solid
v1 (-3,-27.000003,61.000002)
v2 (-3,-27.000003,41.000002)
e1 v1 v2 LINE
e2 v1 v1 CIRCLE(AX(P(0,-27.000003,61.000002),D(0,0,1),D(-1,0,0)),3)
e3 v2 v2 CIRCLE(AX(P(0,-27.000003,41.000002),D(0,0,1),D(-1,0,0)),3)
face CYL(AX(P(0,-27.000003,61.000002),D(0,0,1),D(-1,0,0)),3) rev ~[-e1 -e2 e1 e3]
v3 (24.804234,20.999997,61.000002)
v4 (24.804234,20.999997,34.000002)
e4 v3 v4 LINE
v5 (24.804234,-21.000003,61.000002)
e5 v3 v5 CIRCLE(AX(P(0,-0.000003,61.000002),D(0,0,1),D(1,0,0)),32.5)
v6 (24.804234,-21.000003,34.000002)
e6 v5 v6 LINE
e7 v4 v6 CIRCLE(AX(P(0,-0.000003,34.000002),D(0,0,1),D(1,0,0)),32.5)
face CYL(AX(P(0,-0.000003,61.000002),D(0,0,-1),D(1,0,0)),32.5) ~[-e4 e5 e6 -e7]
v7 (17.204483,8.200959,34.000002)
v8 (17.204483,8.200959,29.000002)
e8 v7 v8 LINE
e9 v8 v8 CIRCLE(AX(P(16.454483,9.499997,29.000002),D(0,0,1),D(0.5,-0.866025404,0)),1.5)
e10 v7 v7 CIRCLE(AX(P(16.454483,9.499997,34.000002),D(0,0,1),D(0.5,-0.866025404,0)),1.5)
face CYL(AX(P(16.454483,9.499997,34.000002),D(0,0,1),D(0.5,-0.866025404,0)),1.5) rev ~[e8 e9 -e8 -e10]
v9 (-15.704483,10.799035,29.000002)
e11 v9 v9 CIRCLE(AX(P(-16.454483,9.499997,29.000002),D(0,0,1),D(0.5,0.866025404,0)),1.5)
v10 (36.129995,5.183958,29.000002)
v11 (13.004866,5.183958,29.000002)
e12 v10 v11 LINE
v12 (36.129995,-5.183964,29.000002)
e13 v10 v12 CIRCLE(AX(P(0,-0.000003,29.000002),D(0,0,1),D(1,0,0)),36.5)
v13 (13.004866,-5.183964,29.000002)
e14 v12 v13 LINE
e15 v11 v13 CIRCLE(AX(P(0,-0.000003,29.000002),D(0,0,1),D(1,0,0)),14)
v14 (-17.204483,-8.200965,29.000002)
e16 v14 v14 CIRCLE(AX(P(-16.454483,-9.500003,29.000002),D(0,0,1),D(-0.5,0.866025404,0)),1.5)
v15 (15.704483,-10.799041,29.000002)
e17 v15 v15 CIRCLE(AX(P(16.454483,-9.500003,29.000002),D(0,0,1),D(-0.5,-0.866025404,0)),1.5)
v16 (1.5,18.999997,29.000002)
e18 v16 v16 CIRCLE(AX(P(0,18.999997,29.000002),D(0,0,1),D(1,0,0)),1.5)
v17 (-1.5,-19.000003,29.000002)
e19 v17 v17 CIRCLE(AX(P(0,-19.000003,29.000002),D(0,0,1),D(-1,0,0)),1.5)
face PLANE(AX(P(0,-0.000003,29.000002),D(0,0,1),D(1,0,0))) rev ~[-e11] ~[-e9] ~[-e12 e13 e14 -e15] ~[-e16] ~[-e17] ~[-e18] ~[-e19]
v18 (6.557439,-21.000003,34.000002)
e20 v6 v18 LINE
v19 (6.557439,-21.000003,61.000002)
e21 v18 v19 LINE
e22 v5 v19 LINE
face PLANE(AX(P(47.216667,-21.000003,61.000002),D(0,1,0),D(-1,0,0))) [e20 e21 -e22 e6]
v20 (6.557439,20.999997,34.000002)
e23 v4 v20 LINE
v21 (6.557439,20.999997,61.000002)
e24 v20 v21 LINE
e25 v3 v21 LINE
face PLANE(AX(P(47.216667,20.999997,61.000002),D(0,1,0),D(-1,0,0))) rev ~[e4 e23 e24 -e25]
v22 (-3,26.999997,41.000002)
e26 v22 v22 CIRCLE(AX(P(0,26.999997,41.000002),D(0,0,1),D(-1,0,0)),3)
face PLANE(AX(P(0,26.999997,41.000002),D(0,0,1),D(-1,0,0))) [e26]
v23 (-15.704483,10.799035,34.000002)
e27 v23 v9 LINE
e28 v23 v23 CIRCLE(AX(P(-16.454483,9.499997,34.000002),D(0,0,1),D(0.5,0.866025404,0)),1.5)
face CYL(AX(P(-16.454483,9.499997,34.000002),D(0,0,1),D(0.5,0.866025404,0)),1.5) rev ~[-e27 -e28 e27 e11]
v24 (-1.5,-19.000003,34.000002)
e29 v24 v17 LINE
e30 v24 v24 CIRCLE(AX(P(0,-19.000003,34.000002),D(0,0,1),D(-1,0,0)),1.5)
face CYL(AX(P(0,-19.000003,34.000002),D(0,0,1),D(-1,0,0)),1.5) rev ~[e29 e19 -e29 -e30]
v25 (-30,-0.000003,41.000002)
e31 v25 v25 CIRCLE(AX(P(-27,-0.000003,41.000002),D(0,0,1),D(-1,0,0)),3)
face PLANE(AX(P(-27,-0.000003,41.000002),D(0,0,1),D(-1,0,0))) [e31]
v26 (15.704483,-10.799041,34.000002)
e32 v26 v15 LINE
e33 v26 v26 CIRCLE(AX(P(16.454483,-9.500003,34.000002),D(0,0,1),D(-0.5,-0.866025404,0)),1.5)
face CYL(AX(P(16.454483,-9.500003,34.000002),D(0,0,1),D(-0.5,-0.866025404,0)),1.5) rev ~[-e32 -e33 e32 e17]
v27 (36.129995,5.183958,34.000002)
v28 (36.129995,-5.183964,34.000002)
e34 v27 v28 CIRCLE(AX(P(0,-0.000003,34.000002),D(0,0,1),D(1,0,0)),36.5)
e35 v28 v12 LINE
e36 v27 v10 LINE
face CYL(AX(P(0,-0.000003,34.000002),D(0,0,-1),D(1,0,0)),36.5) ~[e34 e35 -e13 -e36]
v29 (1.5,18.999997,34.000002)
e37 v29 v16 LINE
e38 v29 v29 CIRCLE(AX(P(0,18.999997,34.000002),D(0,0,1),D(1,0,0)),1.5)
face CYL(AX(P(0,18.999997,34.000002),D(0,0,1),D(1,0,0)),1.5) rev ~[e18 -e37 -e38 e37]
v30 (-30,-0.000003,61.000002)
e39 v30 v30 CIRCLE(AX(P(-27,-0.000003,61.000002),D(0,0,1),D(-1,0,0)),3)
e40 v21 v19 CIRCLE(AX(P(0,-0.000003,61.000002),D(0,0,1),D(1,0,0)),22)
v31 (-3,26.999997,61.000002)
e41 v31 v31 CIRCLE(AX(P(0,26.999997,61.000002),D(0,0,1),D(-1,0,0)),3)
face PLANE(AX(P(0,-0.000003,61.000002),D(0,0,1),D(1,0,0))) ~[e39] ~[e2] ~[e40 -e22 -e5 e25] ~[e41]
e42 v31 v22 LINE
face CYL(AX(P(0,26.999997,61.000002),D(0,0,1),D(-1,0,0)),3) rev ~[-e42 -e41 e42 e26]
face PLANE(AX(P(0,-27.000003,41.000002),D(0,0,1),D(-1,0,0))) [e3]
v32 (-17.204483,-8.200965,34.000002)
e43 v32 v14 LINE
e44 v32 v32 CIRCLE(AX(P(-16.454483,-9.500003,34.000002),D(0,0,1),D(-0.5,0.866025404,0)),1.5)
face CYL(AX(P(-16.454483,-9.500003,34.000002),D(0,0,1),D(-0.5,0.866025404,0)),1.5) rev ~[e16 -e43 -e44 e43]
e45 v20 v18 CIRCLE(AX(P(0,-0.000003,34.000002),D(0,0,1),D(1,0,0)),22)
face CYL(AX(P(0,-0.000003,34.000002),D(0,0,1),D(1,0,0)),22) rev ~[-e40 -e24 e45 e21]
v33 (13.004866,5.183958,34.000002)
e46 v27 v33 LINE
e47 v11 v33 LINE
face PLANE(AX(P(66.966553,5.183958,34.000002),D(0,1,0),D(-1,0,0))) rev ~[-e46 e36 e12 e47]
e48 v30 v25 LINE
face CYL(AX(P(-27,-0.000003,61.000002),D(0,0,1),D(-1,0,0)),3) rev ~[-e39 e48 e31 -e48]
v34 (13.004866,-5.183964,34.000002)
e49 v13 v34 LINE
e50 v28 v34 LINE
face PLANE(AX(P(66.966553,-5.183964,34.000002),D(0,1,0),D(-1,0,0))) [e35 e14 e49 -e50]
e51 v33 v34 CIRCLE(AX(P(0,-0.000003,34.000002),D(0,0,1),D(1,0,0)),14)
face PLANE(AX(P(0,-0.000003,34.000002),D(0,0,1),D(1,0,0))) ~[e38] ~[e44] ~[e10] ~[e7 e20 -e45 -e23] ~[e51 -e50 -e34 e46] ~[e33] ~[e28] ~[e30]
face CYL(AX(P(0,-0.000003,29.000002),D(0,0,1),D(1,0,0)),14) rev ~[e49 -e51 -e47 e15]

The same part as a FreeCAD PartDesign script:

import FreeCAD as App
import Part
import Sketcher
Q = App.Units.Quantity

doc = App.newDocument("Part")
params = doc.addObject("Spreadsheet::Sheet", "Params")
for row, (alias, value) in enumerate([
    ("sketch1_width", "4 mm"),
    ("sketch1_width2", "8 mm"),
    ("sketch1_height", "5 mm"),
    ("sketch1_height2", "27 mm"),
    ("sketch1_width3", "22.5 mm"),
    ("revolution_angle", "360 deg"),
    ("sketch2_diameter", "3 mm"),
    ("pocket1_length", "5 mm"),
    ("sketch3_height", "42 mm"),
    ("pocket2_length", "27 mm"),
    ("sketch4_diameter", "6 mm"),
    ("pocket3_length", "20 mm"),
    ("pocket4_length", "5 mm"),
], start=1):
    params.set(f"A{row}", alias)
    params.set(f"B{row}", "=" + value)
    params.setAlias(f"B{row}", alias)

body = doc.addObject("PartDesign::Body", "Body")

# Sketch on XZ plane
sketch1 = body.newObject("Sketcher::SketchObject", "Sketch")
sketch1.AttachmentSupport = (doc.getObject("XZ_Plane"), [""])
sketch1.MapMode = "FlatFace"
sketch1.addGeometry(Part.LineSegment(App.Vector(14, 5, 0), App.Vector(14, 0, 0)), False)
sketch1.addGeometry(Part.LineSegment(App.Vector(14, 0, 0), App.Vector(36.5, 0, 0)), False)
sketch1.addGeometry(Part.LineSegment(App.Vector(36.5, 0, 0), App.Vector(36.5, 5, 0)), False)
sketch1.addGeometry(Part.LineSegment(App.Vector(36.5, 5, 0), App.Vector(32.5, 5, 0)), False)
sketch1.addGeometry(Part.LineSegment(App.Vector(32.5, 5, 0), App.Vector(32.5, 32, 0)), False)
sketch1.addGeometry(Part.LineSegment(App.Vector(32.5, 32, 0), App.Vector(22, 32, 0)), False)
sketch1.addGeometry(Part.LineSegment(App.Vector(22, 32, 0), App.Vector(22, 5, 0)), False)
sketch1.addGeometry(Part.LineSegment(App.Vector(22, 5, 0), App.Vector(14, 5, 0)), False)
sketch1.addConstraint(Sketcher.Constraint("Coincident", 0, 2, 1, 1))
sketch1.addConstraint(Sketcher.Constraint("Coincident", 1, 2, 2, 1))
sketch1.addConstraint(Sketcher.Constraint("Coincident", 2, 2, 3, 1))
sketch1.addConstraint(Sketcher.Constraint("Coincident", 3, 2, 4, 1))
sketch1.addConstraint(Sketcher.Constraint("Coincident", 4, 2, 5, 1))
sketch1.addConstraint(Sketcher.Constraint("Coincident", 5, 2, 6, 1))
sketch1.addConstraint(Sketcher.Constraint("Coincident", 6, 2, 7, 1))
sketch1.addConstraint(Sketcher.Constraint("Coincident", 7, 2, 0, 1))
sketch1.addConstraint(Sketcher.Constraint("Vertical", 0))
sketch1.addConstraint(Sketcher.Constraint("Horizontal", 1))
sketch1.addConstraint(Sketcher.Constraint("Vertical", 2))
sketch1.addConstraint(Sketcher.Constraint("Horizontal", 3))
sketch1.addConstraint(Sketcher.Constraint("Vertical", 4))
sketch1.addConstraint(Sketcher.Constraint("Horizontal", 5))
sketch1.addConstraint(Sketcher.Constraint("Vertical", 6))
sketch1.addConstraint(Sketcher.Constraint("Horizontal", 7))
sketch1.addConstraint(Sketcher.Constraint("PointOnObject", 0, 2, -1))
sketch1.addConstraint(Sketcher.Constraint("Horizontal", 3, 2, 6, 2))
sketch1.addConstraint(Sketcher.Constraint("DistanceX", 3, 2, 3, 1, Q("4 mm")))
sketch1.addConstraint(Sketcher.Constraint("DistanceX", 7, 2, 7, 1, Q("8 mm")))
sketch1.addConstraint(Sketcher.Constraint("DistanceY", 0, 2, 0, 1, Q("5 mm")))
sketch1.addConstraint(Sketcher.Constraint("DistanceY", 4, 1, 4, 2, Q("27 mm")))
sketch1.addConstraint(Sketcher.Constraint("DistanceX", 1, 1, 1, 2, Q("22.5 mm")))
sketch1.addConstraint(Sketcher.Constraint("DistanceX", -1, 1, 0, 2, Q("14 mm")))
sketch1.setExpression("Constraints[18]", "Params.sketch1_width")
sketch1.setExpression("Constraints[19]", "Params.sketch1_width2")
sketch1.setExpression("Constraints[20]", "Params.sketch1_height")
sketch1.setExpression("Constraints[21]", "Params.sketch1_height2")
sketch1.setExpression("Constraints[22]", "Params.sketch1_width3")
revolution = body.newObject("PartDesign::Revolution", "Revolution")
revolution.Profile = sketch1
revolution.ReferenceAxis = (sketch1, ["V_Axis"])
revolution.setExpression("Angle", "Params.revolution_angle")

# Sketch on XY plane
sketch2 = body.newObject("Sketcher::SketchObject", "Sketch001")
sketch2.AttachmentSupport = (doc.getObject("XY_Plane"), [""])
sketch2.MapMode = "FlatFace"
sketch2.AttachmentOffset = App.Placement(App.Vector(0, 0, 5), App.Rotation())
sketch2.addGeometry(Part.Circle(App.Vector(0, -19, 0), App.Vector(0, 0, 1), 1.5), False)
sketch2.addConstraint(Sketcher.Constraint("PointOnObject", 0, 3, -2))
sketch2.addConstraint(Sketcher.Constraint("Diameter", 0, Q("3 mm")))
sketch2.addConstraint(Sketcher.Constraint("DistanceY", 0, 3, -1, 1, Q("19 mm")))
sketch2.setExpression("Constraints[1]", "Params.sketch2_diameter")
pocket1 = body.newObject("PartDesign::Pocket", "Pocket")
pocket1.Profile = sketch2
pocket1.setExpression("Length", "Params.pocket1_length")
doc.recompute()

polarpattern = body.newObject("PartDesign::PolarPattern", "PolarPattern")
polarpattern.Originals = [pocket1]
polarpattern.Axis = (doc.getObject("Z_Axis"), [""])
polarpattern.Angle = 360
polarpattern.Occurrences = 6
body.Tip = polarpattern

# Sketch on XY plane
sketch3 = body.newObject("Sketcher::SketchObject", "Sketch002")
sketch3.AttachmentSupport = (doc.getObject("XY_Plane"), [""])
sketch3.MapMode = "FlatFace"
sketch3.AttachmentOffset = App.Placement(App.Vector(0, 0, 32), App.Rotation())
sketch3.addGeometry(Part.LineSegment(App.Vector(47, -21, 0), App.Vector(47, 21, 0)), False)
sketch3.addGeometry(Part.LineSegment(App.Vector(47, 21, 0), App.Vector(3, 21, 0)), False)
sketch3.addGeometry(Part.LineSegment(App.Vector(3, 21, 0), App.Vector(3, -21, 0)), False)
sketch3.addGeometry(Part.LineSegment(App.Vector(3, -21, 0), App.Vector(47, -21, 0)), False)
sketch3.addConstraint(Sketcher.Constraint("Coincident", 0, 2, 1, 1))
sketch3.addConstraint(Sketcher.Constraint("Coincident", 1, 2, 2, 1))
sketch3.addConstraint(Sketcher.Constraint("Coincident", 2, 2, 3, 1))
sketch3.addConstraint(Sketcher.Constraint("Coincident", 3, 2, 0, 1))
sketch3.addConstraint(Sketcher.Constraint("Vertical", 0))
sketch3.addConstraint(Sketcher.Constraint("Horizontal", 1))
sketch3.addConstraint(Sketcher.Constraint("Vertical", 2))
sketch3.addConstraint(Sketcher.Constraint("Horizontal", 3))
sketch3.addConstraint(Sketcher.Constraint("DistanceY", 0, 1, 0, 2, Q("42 mm")))
sketch3.addConstraint(Sketcher.Constraint("DistanceY", -1, 1, 0, 2, Q("21 mm")))
sketch3.addConstraint(Sketcher.Constraint("DistanceX", 1, 2, 1, 1, Q("44.124263 mm")))
sketch3.addConstraint(Sketcher.Constraint("DistanceX", -1, 1, 0, 2, Q("47.216667 mm")))
sketch3.setExpression("Constraints[8]", "Params.sketch3_height")
pocket2 = body.newObject("PartDesign::Pocket", "Pocket001")
pocket2.Profile = sketch3
pocket2.setExpression("Length", "Params.pocket2_length")

# Sketch on XY plane
sketch4 = body.newObject("Sketcher::SketchObject", "Sketch003")
sketch4.AttachmentSupport = (doc.getObject("XY_Plane"), [""])
sketch4.MapMode = "FlatFace"
sketch4.AttachmentOffset = App.Placement(App.Vector(0, 0, 32), App.Rotation())
sketch4.addGeometry(Part.Circle(App.Vector(0, -27, 0), App.Vector(0, 0, 1), 3), False)
sketch4.addGeometry(Part.Circle(App.Vector(0, 27, 0), App.Vector(0, 0, 1), 3), False)
sketch4.addGeometry(Part.Circle(App.Vector(-27, 0, 0), App.Vector(0, 0, 1), 3), False)
sketch4.addConstraint(Sketcher.Constraint("Equal", 0, 1))
sketch4.addConstraint(Sketcher.Constraint("Equal", 1, 2))
sketch4.addConstraint(Sketcher.Constraint("Symmetric", 0, 3, 1, 3, -1, 1))
sketch4.addConstraint(Sketcher.Constraint("PointOnObject", 0, 3, -2))
sketch4.addConstraint(Sketcher.Constraint("PointOnObject", 2, 3, -1))
sketch4.addConstraint(Sketcher.Constraint("Diameter", 0, Q("6 mm")))
sketch4.addConstraint(Sketcher.Constraint("DistanceY", 0, 3, -1, 1, Q("27 mm")))
sketch4.addConstraint(Sketcher.Constraint("DistanceX", 2, 3, -1, 1, Q("27 mm")))
sketch4.setExpression("Constraints[5]", "Params.sketch4_diameter")
pocket3 = body.newObject("PartDesign::Pocket", "Pocket002")
pocket3.Profile = sketch4
pocket3.setExpression("Length", "Params.pocket3_length")

# Sketch on XY plane
sketch5 = body.newObject("Sketcher::SketchObject", "Sketch004")
sketch5.AttachmentSupport = (doc.getObject("XY_Plane"), [""])
sketch5.MapMode = "FlatFace"
sketch5.AttachmentOffset = App.Placement(App.Vector(0, 0, 5), App.Rotation())
sketch5.addGeometry(Part.LineSegment(App.Vector(67, -5, 0), App.Vector(67, 5, 0)), False)
sketch5.addGeometry(Part.LineSegment(App.Vector(67, 5, 0), App.Vector(11, 5, 0)), False)
sketch5.addGeometry(Part.LineSegment(App.Vector(11, 5, 0), App.Vector(11, -5, 0)), False)
sketch5.addGeometry(Part.LineSegment(App.Vector(11, -5, 0), App.Vector(67, -5, 0)), False)
sketch5.addConstraint(Sketcher.Constraint("Coincident", 0, 2, 1, 1))
sketch5.addConstraint(Sketcher.Constraint("Coincident", 1, 2, 2, 1))
sketch5.addConstraint(Sketcher.Constraint("Coincident", 2, 2, 3, 1))
sketch5.addConstraint(Sketcher.Constraint("Coincident", 3, 2, 0, 1))
sketch5.addConstraint(Sketcher.Constraint("Vertical", 0))
sketch5.addConstraint(Sketcher.Constraint("Horizontal", 1))
sketch5.addConstraint(Sketcher.Constraint("Vertical", 2))
sketch5.addConstraint(Sketcher.Constraint("Horizontal", 3))
sketch5.addConstraint(Sketcher.Constraint("DistanceX", 1, 2, 1, 1, Q("55.928879 mm")))
sketch5.addConstraint(Sketcher.Constraint("DistanceY", 0, 1, 0, 2, Q("10.367922 mm")))
sketch5.addConstraint(Sketcher.Constraint("DistanceY", -1, 1, 0, 2, Q("5.183961 mm")))
sketch5.addConstraint(Sketcher.Constraint("DistanceX", -1, 1, 0, 2, Q("66.966553 mm")))
pocket4 = body.newObject("PartDesign::Pocket", "Pocket003")
pocket4.Profile = sketch5
pocket4.setExpression("Length", "Params.pocket4_length")
body2 = doc.addObject("PartDesign::Body", "Body001")
doc.recompute()

body.Placement = App.Placement(App.Vector(0, -0.000003, 29.000002), App.Rotation(App.Vector(0, 0, 1), 0))
boolean = body2.newObject("PartDesign::Boolean", "Boolean")
boolean.Type = "Fuse"
boolean.addObjects([body])

doc.recompute()
